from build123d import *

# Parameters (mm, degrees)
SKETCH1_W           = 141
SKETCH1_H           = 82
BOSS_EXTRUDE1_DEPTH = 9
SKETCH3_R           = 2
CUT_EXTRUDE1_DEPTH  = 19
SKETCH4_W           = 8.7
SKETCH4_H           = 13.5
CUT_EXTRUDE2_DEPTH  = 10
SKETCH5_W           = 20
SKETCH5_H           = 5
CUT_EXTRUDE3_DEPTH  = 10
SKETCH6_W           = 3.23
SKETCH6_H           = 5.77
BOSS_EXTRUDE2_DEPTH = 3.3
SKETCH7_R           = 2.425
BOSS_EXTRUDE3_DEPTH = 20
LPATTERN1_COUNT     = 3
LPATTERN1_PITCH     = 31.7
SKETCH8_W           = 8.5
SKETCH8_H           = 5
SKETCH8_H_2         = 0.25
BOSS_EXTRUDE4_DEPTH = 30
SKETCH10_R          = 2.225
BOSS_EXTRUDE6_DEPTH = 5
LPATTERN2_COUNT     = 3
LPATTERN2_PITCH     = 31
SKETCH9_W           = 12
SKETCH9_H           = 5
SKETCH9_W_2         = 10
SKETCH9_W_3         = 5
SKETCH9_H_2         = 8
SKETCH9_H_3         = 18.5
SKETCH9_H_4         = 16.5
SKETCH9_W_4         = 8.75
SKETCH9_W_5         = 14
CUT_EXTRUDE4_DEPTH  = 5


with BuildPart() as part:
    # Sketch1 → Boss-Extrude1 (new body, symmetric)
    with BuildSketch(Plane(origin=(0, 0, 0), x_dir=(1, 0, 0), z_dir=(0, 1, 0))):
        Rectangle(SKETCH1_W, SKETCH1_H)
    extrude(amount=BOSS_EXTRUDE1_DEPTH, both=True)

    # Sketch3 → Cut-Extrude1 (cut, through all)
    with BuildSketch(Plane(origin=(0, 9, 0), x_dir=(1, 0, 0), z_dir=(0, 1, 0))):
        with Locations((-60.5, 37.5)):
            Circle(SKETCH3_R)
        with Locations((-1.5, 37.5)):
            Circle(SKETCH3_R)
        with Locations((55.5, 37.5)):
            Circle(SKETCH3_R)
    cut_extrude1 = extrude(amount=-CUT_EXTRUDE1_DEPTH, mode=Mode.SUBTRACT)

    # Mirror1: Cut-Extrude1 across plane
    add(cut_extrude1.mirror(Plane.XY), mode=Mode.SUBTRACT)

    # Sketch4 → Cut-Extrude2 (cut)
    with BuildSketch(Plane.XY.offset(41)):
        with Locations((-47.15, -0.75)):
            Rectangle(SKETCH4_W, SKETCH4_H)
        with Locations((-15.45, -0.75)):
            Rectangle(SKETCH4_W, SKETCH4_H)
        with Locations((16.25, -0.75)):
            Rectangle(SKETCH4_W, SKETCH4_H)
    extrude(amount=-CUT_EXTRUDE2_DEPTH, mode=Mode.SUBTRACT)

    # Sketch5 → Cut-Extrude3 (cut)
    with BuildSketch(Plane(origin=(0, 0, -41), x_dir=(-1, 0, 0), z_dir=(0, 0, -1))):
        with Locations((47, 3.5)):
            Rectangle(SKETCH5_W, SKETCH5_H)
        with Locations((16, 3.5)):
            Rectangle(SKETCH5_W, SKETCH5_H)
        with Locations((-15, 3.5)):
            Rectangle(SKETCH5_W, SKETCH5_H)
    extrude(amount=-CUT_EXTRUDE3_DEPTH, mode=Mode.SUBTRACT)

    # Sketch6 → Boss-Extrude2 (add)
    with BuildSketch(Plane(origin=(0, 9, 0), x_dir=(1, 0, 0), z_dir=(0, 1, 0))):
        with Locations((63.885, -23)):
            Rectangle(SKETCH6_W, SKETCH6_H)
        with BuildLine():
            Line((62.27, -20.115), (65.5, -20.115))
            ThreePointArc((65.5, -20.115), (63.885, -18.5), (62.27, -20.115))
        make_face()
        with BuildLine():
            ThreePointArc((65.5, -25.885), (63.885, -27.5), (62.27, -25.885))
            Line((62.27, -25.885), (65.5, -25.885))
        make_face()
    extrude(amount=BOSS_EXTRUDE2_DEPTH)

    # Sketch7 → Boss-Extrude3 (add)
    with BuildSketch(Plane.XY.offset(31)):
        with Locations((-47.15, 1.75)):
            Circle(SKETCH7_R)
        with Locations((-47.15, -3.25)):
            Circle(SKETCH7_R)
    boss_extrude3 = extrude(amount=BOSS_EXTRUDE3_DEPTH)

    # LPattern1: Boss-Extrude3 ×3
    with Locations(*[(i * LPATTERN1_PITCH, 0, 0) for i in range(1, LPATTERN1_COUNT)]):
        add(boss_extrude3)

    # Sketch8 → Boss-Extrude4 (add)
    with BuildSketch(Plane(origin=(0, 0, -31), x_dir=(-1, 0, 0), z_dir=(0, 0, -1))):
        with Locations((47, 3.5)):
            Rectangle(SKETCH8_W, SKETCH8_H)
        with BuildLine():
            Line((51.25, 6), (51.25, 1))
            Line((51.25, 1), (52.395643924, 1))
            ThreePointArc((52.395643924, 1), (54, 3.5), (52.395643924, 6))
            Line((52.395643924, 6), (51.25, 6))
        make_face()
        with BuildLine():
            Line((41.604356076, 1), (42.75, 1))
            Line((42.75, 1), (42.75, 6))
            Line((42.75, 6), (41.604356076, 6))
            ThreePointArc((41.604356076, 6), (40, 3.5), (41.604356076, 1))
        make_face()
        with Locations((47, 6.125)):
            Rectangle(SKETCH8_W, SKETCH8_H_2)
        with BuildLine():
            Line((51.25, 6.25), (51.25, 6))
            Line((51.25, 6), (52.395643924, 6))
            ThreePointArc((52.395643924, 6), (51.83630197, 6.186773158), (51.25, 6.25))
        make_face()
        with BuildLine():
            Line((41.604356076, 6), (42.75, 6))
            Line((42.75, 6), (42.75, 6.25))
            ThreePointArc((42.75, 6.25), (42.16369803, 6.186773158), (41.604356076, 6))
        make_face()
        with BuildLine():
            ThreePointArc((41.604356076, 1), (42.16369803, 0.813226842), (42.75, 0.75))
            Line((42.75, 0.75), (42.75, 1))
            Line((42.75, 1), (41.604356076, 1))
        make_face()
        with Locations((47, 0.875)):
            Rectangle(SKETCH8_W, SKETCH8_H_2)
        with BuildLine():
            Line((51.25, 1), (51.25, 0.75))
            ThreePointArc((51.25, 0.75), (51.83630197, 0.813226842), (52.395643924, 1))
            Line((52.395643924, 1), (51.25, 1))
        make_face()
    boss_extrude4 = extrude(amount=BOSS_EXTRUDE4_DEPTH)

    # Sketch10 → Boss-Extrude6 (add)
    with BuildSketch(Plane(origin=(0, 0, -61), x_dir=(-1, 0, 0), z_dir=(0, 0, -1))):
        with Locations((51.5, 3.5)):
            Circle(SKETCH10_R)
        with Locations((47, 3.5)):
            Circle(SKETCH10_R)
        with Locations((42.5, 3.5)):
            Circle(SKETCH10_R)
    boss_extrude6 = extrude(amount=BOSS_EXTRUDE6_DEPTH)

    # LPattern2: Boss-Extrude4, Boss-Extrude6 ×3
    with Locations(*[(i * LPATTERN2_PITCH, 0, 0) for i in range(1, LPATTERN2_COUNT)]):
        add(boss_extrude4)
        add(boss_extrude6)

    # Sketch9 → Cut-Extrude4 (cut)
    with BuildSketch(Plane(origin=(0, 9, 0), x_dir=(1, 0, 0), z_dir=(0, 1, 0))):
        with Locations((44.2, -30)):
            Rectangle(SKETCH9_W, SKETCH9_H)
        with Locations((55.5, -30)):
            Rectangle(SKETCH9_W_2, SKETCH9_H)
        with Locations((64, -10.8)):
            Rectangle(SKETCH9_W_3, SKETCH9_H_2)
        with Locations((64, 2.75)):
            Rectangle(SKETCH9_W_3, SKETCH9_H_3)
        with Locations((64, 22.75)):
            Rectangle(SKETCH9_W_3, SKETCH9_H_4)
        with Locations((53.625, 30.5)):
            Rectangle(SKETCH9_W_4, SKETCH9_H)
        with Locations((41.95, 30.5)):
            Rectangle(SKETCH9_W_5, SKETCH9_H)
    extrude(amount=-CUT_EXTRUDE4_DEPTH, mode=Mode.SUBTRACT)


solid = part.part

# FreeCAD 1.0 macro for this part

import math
import FreeCAD as App
import Part
import Sketcher

V = App.Vector


def add_polygon(sketch, points):
    """Adds a closed chain of lines whose ends are joined by coincident constraints."""
    first, n = sketch.GeometryCount, len(points)
    for a, b in zip(points, points[1:] + points[:1]):
        sketch.addGeometry(Part.LineSegment(App.Vector(*a, 0), App.Vector(*b, 0)), False)
    for i in range(n):
        sketch.addConstraint(Sketcher.Constraint("Coincident", first + i, 2, first + (i + 1) % n, 1))

doc = App.newDocument("Part")
body = doc.addObject("PartDesign::Body", "Body")

# Sketch on XZ plane
sketch1 = body.newObject("Sketcher::SketchObject", "Sketch")
sketch1.AttachmentSupport = (doc.getObject("XZ_Plane"), [""])
sketch1.MapMode = "FlatFace"
add_polygon(sketch1, [(-70, -41), (-70, 41), (70, 41), (70, -41)])  # lines 0-3
sketch1.addConstraint([
    Sketcher.Constraint("Vertical", 0),
    Sketcher.Constraint("Horizontal", 1),
    Sketcher.Constraint("Vertical", 2),
    Sketcher.Constraint("Horizontal", 3),
    Sketcher.Constraint("Symmetric", 0, 2, 2, 2, -1, 1),
    Sketcher.Constraint("DistanceX", 1, 1, 1, 2, 141.0),
    Sketcher.Constraint("DistanceY", 0, 1, 0, 2, 82.0),
])
pad1 = body.newObject("PartDesign::Pad", "Pad")
pad1.Profile = sketch1
pad1.Length = 18
pad1.Midplane = True

# Sketch on XZ plane
sketch2 = body.newObject("Sketcher::SketchObject", "Sketch001")
sketch2.AttachmentSupport = (doc.getObject("XZ_Plane"), [""])
sketch2.MapMode = "FlatFace"
sketch2.AttachmentOffset = App.Placement(V(0, 0, -9), App.Rotation())
sketch2.addGeometry([
    Part.Circle(V(-60.5, -37.5, 0), V(0, 0, 1), 2),
    Part.Circle(V(-1.5, -37.5, 0), V(0, 0, 1), 2),
    Part.Circle(V(55.5, -37.5, 0), V(0, 0, 1), 2),
], False)
sketch2.addConstraint([
    Sketcher.Constraint("Equal", 0, 1),
    Sketcher.Constraint("Equal", 1, 2),
    Sketcher.Constraint("Horizontal", 0, 3, 1, 3),
    Sketcher.Constraint("Horizontal", 1, 3, 2, 3),
    Sketcher.Constraint("Diameter", 0, 4.0),
    Sketcher.Constraint("DistanceX", 0, 3, 1, 3, 59.0),
    Sketcher.Constraint("DistanceX", 1, 3, 2, 3, 57.0),
    Sketcher.Constraint("DistanceX", 0, 3, -1, 1, 60.5),
    Sketcher.Constraint("DistanceY", 0, 3, -1, 1, 37.5),
])
pocket1 = body.newObject("PartDesign::Pocket", "Pocket")
pocket1.Profile = sketch2
pocket1.Type = "ThroughAll"
pocket1.Reversed = True
doc.recompute()

mirrored = body.newObject("PartDesign::Mirrored", "Mirrored")
mirrored.Originals = [pocket1]
mirrored.MirrorPlane = (doc.getObject("XY_Plane"), [""])
body.Tip = mirrored

# Sketch on XY plane
sketch3 = body.newObject("Sketcher::SketchObject", "Sketch002")
sketch3.AttachmentSupport = (doc.getObject("XY_Plane"), [""])
sketch3.MapMode = "FlatFace"
sketch3.AttachmentOffset = App.Placement(V(0, 0, 41), App.Rotation())
add_polygon(sketch3, [(-52, 6), (-52, -8), (-43, -8), (-43, 6)])  # lines 0-3
add_polygon(sketch3, [(-20, 6), (-20, -8), (-11, -8), (-11, 6)])  # lines 4-7
add_polygon(sketch3, [(12, 6), (12, -8), (21, -8), (21, 6)])  # lines 8-11
sketch3.addConstraint([
    Sketcher.Constraint("Vertical", 0),
    Sketcher.Constraint("Horizontal", 1),
    Sketcher.Constraint("Vertical", 2),
    Sketcher.Constraint("Horizontal", 3),
    Sketcher.Constraint("Vertical", 4),
    Sketcher.Constraint("Horizontal", 5),
    Sketcher.Constraint("Vertical", 6),
    Sketcher.Constraint("Horizontal", 7),
    Sketcher.Constraint("Vertical", 8),
    Sketcher.Constraint("Horizontal", 9),
    Sketcher.Constraint("Vertical", 10),
    Sketcher.Constraint("Horizontal", 11),
    Sketcher.Constraint("Horizontal", 1, 2, 4, 2),
    Sketcher.Constraint("Horizontal", 3, 2, 6, 2),
    Sketcher.Constraint("Horizontal", 5, 2, 8, 2),
    Sketcher.Constraint("Horizontal", 7, 2, 10, 2),
    Sketcher.Constraint("Equal", 3, 5),
    Sketcher.Constraint("Equal", 7, 9),
    Sketcher.Constraint("DistanceX", 1, 1, 1, 2, 8.7),
    Sketcher.Constraint("DistanceY", 0, 2, 0, 1, 13.5),
    Sketcher.Constraint("DistanceY", -1, 1, 2, 2, 6.0),
    Sketcher.Constraint("DistanceX", 1, 2, 4, 2, 23.0),
    Sketcher.Constraint("DistanceX", 5, 2, 8, 2, 23.0),
    Sketcher.Constraint("DistanceX", 0, 2, -1, 1, 51.5),
])
pocket2 = body.newObject("PartDesign::Pocket", "Pocket001")
pocket2.Profile = sketch3
pocket2.Length = 10

# Sketch on XY plane
sketch4 = body.newObject("Sketcher::SketchObject", "Sketch003")
sketch4.AttachmentSupport = (doc.getObject("XY_Plane"), [""])
sketch4.MapMode = "FlatFace"
sketch4.AttachmentOffset = App.Placement(V(0, 0, -41), App.Rotation())
add_polygon(sketch4, [(-37, 6), (-37, 1), (-57, 1), (-57, 6)])  # lines 0-3
add_polygon(sketch4, [(-6, 6), (-6, 1), (-26, 1), (-26, 6)])  # lines 4-7
add_polygon(sketch4, [(25, 6), (25, 1), (5, 1), (5, 6)])  # lines 8-11
sketch4.addConstraint([
    Sketcher.Constraint("Vertical", 0),
    Sketcher.Constraint("Horizontal", 1),
    Sketcher.Constraint("Vertical", 2),
    Sketcher.Constraint("Horizontal", 3),
    Sketcher.Constraint("Vertical", 4),
    Sketcher.Constraint("Horizontal", 5),
    Sketcher.Constraint("Vertical", 6),
    Sketcher.Constraint("Horizontal", 7),
    Sketcher.Constraint("Vertical", 8),
    Sketcher.Constraint("Horizontal", 9),
    Sketcher.Constraint("Vertical", 10),
    Sketcher.Constraint("Horizontal", 11),
    Sketcher.Constraint("Horizontal", 1, 2, 4, 2),
    Sketcher.Constraint("Horizontal", 3, 2, 6, 2),
    Sketcher.Constraint("Horizontal", 5, 2, 8, 2),
    Sketcher.Constraint("Horizontal", 7, 2, 10, 2),
    Sketcher.Constraint("Equal", 3, 5),
    Sketcher.Constraint("Equal", 7, 9),
    Sketcher.Constraint("DistanceX", 1, 2, 1, 1, 20.0),
    Sketcher.Constraint("DistanceY", 0, 2, 0, 1, 5.0),
    Sketcher.Constraint("DistanceX", 0, 2, -1, 1, 37.0),
    Sketcher.Constraint("DistanceY", -1, 1, 0, 2, 1.0),
    Sketcher.Constraint("DistanceX", 4, 2, -1, 1, 6.0),
    Sketcher.Constraint("DistanceX", -1, 1, 8, 2, 25.0),
])
pocket3 = body.newObject("PartDesign::Pocket", "Pocket002")
pocket3.Profile = sketch4
pocket3.Length = 10
pocket3.Reversed = True

# Sketch on XZ plane
sketch5 = body.newObject("Sketcher::SketchObject", "Sketch004")
sketch5.AttachmentSupport = (doc.getObject("XZ_Plane"), [""])
sketch5.MapMode = "FlatFace"
sketch5.AttachmentOffset = App.Placement(V(0, 0, -9), App.Rotation())
sketch5.addGeometry([
    Part.LineSegment(V(62.3, 20.1, 0), V(62.3, 25.9, 0)),
    Part.ArcOfCircle(Part.Circle(V(63.9, 25.9, 0), V(0, 0, 1), 1.6), math.radians(0), math.radians(180)),
    Part.LineSegment(V(65.5, 25.9, 0), V(65.5, 20.1, 0)),
    Part.ArcOfCircle(Part.Circle(V(63.9, 20.1, 0), V(0, 0, 1), 1.6), math.radians(180), math.radians(360)),
], False)
sketch5.addConstraint([
    Sketcher.Constraint("Tangent", 0, 2, 1, 2),
    Sketcher.Constraint("Tangent", 1, 1, 2, 1),
    Sketcher.Constraint("Tangent", 2, 2, 3, 2),
    Sketcher.Constraint("Tangent", 3, 1, 0, 1),
    Sketcher.Constraint("Vertical", 0),
    Sketcher.Constraint("Vertical", 2),
    Sketcher.Constraint("Radius", 1, 1.615),
    Sketcher.Constraint("DistanceY", 0, 1, 0, 2, 5.77),
    Sketcher.Constraint("DistanceX", -1, 1, 1, 1, 65.5),
    Sketcher.Constraint("DistanceY", -1, 1, 1, 3, 25.885),
])
pad2 = body.newObject("PartDesign::Pad", "Pad001")
pad2.Profile = sketch5
pad2.Length = 3.3
pad2.Reversed = True

# Sketch on XY plane
sketch6 = body.newObject("Sketcher::SketchObject", "Sketch005")
sketch6.AttachmentSupport = (doc.getObject("XY_Plane"), [""])
sketch6.MapMode = "FlatFace"
sketch6.AttachmentOffset = App.Placement(V(0, 0, 31), App.Rotation())
sketch6.addGeometry([
    Part.Circle(V(-47.1, 1.8, 0), V(0, 0, 1), 2.4),
    Part.Circle(V(-47.1, -3.2, 0), V(0, 0, 1), 2.4),
], False)
sketch6.addConstraint([
    Sketcher.Constraint("Equal", 0, 1),
    Sketcher.Constraint("Vertical", 0, 3, 1, 3),
    Sketcher.Constraint("Diameter", 0, 4.85),
    Sketcher.Constraint("DistanceY", 1, 3, 0, 3, 5.0),
    Sketcher.Constraint("DistanceX", 0, 3, -1, 1, 47.15),
    Sketcher.Constraint("DistanceY", -1, 1, 0, 3, 1.75),
])
pad3 = body.newObject("PartDesign::Pad", "Pad002")
pad3.Profile = sketch6
pad3.Length = 20
doc.recompute()

linearpattern = body.newObject("PartDesign::LinearPattern", "LinearPattern")
linearpattern.Originals = [pad3]
linearpattern.Direction = (doc.getObject("X_Axis"), [""])
linearpattern.Mode = "offset"
linearpattern.Offset = 31.7
linearpattern.Occurrences = 3
body.Tip = linearpattern

# Sketch on XY plane
sketch7 = body.newObject("Sketcher::SketchObject", "Sketch006")
sketch7.AttachmentSupport = (doc.getObject("XY_Plane"), [""])
sketch7.MapMode = "FlatFace"
sketch7.AttachmentOffset = App.Placement(V(0, 0, -31), App.Rotation())
sketch7.addGeometry([
    Part.ArcOfCircle(Part.Circle(V(-51.2, 3.5, 0), V(0, 0, 1), 2.8), math.radians(115), math.radians(245)),  # 0
    Part.ArcOfCircle(Part.Circle(V(-51.3, 3.5, 0), V(0, 0, 1), 2.7), math.radians(90), math.radians(115)),  # 1
    Part.LineSegment(V(-51.2, 6.2, 0), V(-42.8, 6.2, 0)),  # 2
    Part.ArcOfCircle(Part.Circle(V(-42.7, 3.5, 0), V(0, 0, 1), 2.7), math.radians(65), math.radians(90)),  # 3
    Part.ArcOfCircle(Part.Circle(V(-42.8, 3.5, 0), V(0, 0, 1), 2.8), math.radians(-65), math.radians(65)),  # 4
    Part.ArcOfCircle(Part.Circle(V(-42.7, 3.5, 0), V(0, 0, 1), 2.7), math.radians(-90), math.radians(-65)),  # 5
    Part.LineSegment(V(-42.8, 0.8, 0), V(-51.2, 0.8, 0)),  # 6
    Part.ArcOfCircle(Part.Circle(V(-51.3, 3.5, 0), V(0, 0, 1), 2.7), math.radians(-115), math.radians(-90)),  # 7
], False)
sketch7.addConstraint([
    Sketcher.Constraint("Tangent", 0, 1, 1, 2),
    Sketcher.Constraint("Tangent", 1, 1, 2, 1),
    Sketcher.Constraint("Tangent", 2, 2, 3, 2),
    Sketcher.Constraint("Tangent", 3, 1, 4, 2),
    Sketcher.Constraint("Tangent", 4, 1, 5, 2),
    Sketcher.Constraint("Tangent", 5, 1, 6, 1),
    Sketcher.Constraint("Tangent", 6, 2, 7, 2),
    Sketcher.Constraint("Tangent", 7, 1, 0, 2),
    Sketcher.Constraint("Horizontal", 2),
    Sketcher.Constraint("Horizontal", 6),
    Sketcher.Constraint("Coincident", 5, 3, 3, 3),
    Sketcher.Constraint("Equal", 0, 1),
    Sketcher.Constraint("Equal", 1, 3),
    Sketcher.Constraint("Horizontal", 0, 1, 3, 1),
    Sketcher.Constraint("Horizontal", 4, 1, 7, 1),
    Sketcher.Constraint("Vertical", 3, 1, 4, 1),
    Sketcher.Constraint("Radius", 0, 2.75),
    Sketcher.Constraint("DistanceX", 2, 1, 2, 2, 8.5),
    Sketcher.Constraint("DistanceY", -1, 1, 0, 1, 6.0),
    Sketcher.Constraint("DistanceY", -1, 1, 4, 1, 1.0),
    Sketcher.Constraint("DistanceX", 0, 3, -1, 1, 51.25),
])
pad4 = body.newObject("PartDesign::Pad", "Pad003")
pad4.Profile = sketch7
pad4.Length = 30
pad4.Reversed = True

# Sketch on XY plane
sketch8 = body.newObject("Sketcher::SketchObject", "Sketch007")
sketch8.AttachmentSupport = (doc.getObject("XY_Plane"), [""])
sketch8.MapMode = "FlatFace"
sketch8.AttachmentOffset = App.Placement(V(0, 0, -61), App.Rotation())
sketch8.addGeometry([
    Part.Circle(V(-51.5, 3.5, 0), V(0, 0, 1), 2.2),
    Part.Circle(V(-47, 3.5, 0), V(0, 0, 1), 2.2),
    Part.Circle(V(-42.5, 3.5, 0), V(0, 0, 1), 2.2),
], False)
sketch8.addConstraint([
    Sketcher.Constraint("Equal", 0, 1),
    Sketcher.Constraint("Equal", 1, 2),
    Sketcher.Constraint("Horizontal", 0, 3, 1, 3),
    Sketcher.Constraint("Horizontal", 1, 3, 2, 3),
    Sketcher.Constraint("Diameter", 0, 4.45),
    Sketcher.Constraint("DistanceX", 1, 3, -1, 1, 47.0),
    Sketcher.Constraint("DistanceX", 0, 3, 2, 3, 9.0),
    Sketcher.Constraint("DistanceX", 0, 3, -1, 1, 51.5),
    Sketcher.Constraint("DistanceY", -1, 1, 0, 3, 3.5),
])
pad5 = body.newObject("PartDesign::Pad", "Pad004")
pad5.Profile = sketch8
pad5.Length = 5
pad5.Reversed = True
doc.recompute()

linearpattern2 = body.newObject("PartDesign::LinearPattern", "LinearPattern001")
linearpattern2.Originals = [pad4, pad5]
linearpattern2.Direction = (doc.getObject("X_Axis"), [""])
linearpattern2.Mode = "offset"
linearpattern2.Offset = 31
linearpattern2.Occurrences = 3
body.Tip = linearpattern2

# Sketch on XZ plane
sketch9 = body.newObject("Sketcher::SketchObject", "Sketch008")
sketch9.AttachmentSupport = (doc.getObject("XZ_Plane"), [""])
sketch9.MapMode = "FlatFace"
sketch9.AttachmentOffset = App.Placement(V(0, 0, -9), App.Rotation())
add_polygon(sketch9, [(38, 28), (38, 32), (50, 32), (50, 28)])  # lines 0-3
add_polygon(sketch9, [(50, 28), (50, 32), (60, 32), (60, 28)])  # lines 4-7
add_polygon(sketch9, [(62, 7), (62, 15), (66, 15), (66, 7)])  # lines 8-11
add_polygon(sketch9, [(62, -12), (62, 6), (66, 6), (66, -12)])  # lines 12-15
add_polygon(sketch9, [(62, -31), (62, -14), (66, -14), (66, -31)])  # lines 16-19
add_polygon(sketch9, [(49, -33), (49, -28), (58, -28), (58, -33)])  # lines 20-23
add_polygon(sketch9, [(35, -33), (35, -28), (49, -28), (49, -33)])  # lines 24-27
sketch9.addConstraint([
    Sketcher.Constraint("Vertical", 0),
    Sketcher.Constraint("Horizontal", 1),
    Sketcher.Constraint("Vertical", 2),
    Sketcher.Constraint("Horizontal", 3),
    Sketcher.Constraint("Vertical", 4),
    Sketcher.Constraint("Horizontal", 5),
    Sketcher.Constraint("Vertical", 6),
    Sketcher.Constraint("Horizontal", 7),
    Sketcher.Constraint("Vertical", 8),
    Sketcher.Constraint("Horizontal", 9),
    Sketcher.Constraint("Vertical", 10),
    Sketcher.Constraint("Horizontal", 11),
    Sketcher.Constraint("Vertical", 12),
    Sketcher.Constraint("Horizontal", 13),
    Sketcher.Constraint("Vertical", 14),
    Sketcher.Constraint("Horizontal", 15),
    Sketcher.Constraint("Vertical", 16),
    Sketcher.Constraint("Horizontal", 17),
    Sketcher.Constraint("Vertical", 18),
    Sketcher.Constraint("Horizontal", 19),
    Sketcher.Constraint("Vertical", 20),
    Sketcher.Constraint("Horizontal", 21),
    Sketcher.Constraint("Vertical", 22),
    Sketcher.Constraint("Horizontal", 23),
    Sketcher.Constraint("Vertical", 24),
    Sketcher.Constraint("Horizontal", 25),
    Sketcher.Constraint("Vertical", 26),
    Sketcher.Constraint("Horizontal", 27),
    Sketcher.Constraint("Horizontal", 1, 2, 4, 2),
    Sketcher.Constraint("Horizontal", 3, 2, 6, 2),
    Sketcher.Constraint("Horizontal", 21, 2, 24, 2),
    Sketcher.Constraint("Horizontal", 23, 2, 26, 2),
    Sketcher.Constraint("Vertical", 11, 2, 12, 2),
    Sketcher.Constraint("Vertical", 10, 2, 13, 2),
    Sketcher.Constraint("Vertical", 15, 2, 16, 2),
    Sketcher.Constraint("Vertical", 14, 2, 17, 2),
    Sketcher.Constraint("Equal", 19, 0),
    Sketcher.Constraint("Equal", 6, 20),
    Sketcher.Constraint("DistanceX", 1, 1, 1, 2, 12.0),
    Sketcher.Constraint("DistanceX", 5, 1, 5, 2, 10.0),
    Sketcher.Constraint("DistanceX", 9, 1, 9, 2, 5.0),
    Sketcher.Constraint("DistanceX", 25, 1, 25, 2, 14.0),
    Sketcher.Constraint("DistanceY", 8, 1, 8, 2, 8.0),
    Sketcher.Constraint("DistanceY", 12, 1, 12, 2, 18.5),
    Sketcher.Constraint("DistanceY", 16, 1, 16, 2, 16.5),
    Sketcher.Constraint("DistanceY", 14, 2, -1, 1, 12.0),
    Sketcher.Constraint("DistanceY", 18, 2, -1, 1, 31.0),
    Sketcher.Constraint("DistanceY", 20, 2, -1, 1, 28.0),
    Sketcher.Constraint("DistanceX", -1, 1, 21, 2, 58.0),
    Sketcher.Constraint("DistanceX", 6, 2, 8, 2, 1.0),
    Sketcher.Constraint("DistanceY", 12, 2, 6, 2, 21.0),
    Sketcher.Constraint("DistanceX", 21, 1, 21, 2, 8.75),
    Sketcher.Constraint("DistanceX", -1, 1, 0, 2, 38.2),
    Sketcher.Constraint("DistanceX", -1, 1, 4, 2, 50.5),
    Sketcher.Constraint("DistanceY", -1, 1, 8, 2, 14.8),
    Sketcher.Constraint("DistanceX", 24, 2, 20, 2, 14.3),
])
pocket4 = body.newObject("PartDesign::Pocket", "Pocket003")
pocket4.Profile = sketch9
pocket4.Length = 5
pocket4.Reversed = True

doc.recompute()
